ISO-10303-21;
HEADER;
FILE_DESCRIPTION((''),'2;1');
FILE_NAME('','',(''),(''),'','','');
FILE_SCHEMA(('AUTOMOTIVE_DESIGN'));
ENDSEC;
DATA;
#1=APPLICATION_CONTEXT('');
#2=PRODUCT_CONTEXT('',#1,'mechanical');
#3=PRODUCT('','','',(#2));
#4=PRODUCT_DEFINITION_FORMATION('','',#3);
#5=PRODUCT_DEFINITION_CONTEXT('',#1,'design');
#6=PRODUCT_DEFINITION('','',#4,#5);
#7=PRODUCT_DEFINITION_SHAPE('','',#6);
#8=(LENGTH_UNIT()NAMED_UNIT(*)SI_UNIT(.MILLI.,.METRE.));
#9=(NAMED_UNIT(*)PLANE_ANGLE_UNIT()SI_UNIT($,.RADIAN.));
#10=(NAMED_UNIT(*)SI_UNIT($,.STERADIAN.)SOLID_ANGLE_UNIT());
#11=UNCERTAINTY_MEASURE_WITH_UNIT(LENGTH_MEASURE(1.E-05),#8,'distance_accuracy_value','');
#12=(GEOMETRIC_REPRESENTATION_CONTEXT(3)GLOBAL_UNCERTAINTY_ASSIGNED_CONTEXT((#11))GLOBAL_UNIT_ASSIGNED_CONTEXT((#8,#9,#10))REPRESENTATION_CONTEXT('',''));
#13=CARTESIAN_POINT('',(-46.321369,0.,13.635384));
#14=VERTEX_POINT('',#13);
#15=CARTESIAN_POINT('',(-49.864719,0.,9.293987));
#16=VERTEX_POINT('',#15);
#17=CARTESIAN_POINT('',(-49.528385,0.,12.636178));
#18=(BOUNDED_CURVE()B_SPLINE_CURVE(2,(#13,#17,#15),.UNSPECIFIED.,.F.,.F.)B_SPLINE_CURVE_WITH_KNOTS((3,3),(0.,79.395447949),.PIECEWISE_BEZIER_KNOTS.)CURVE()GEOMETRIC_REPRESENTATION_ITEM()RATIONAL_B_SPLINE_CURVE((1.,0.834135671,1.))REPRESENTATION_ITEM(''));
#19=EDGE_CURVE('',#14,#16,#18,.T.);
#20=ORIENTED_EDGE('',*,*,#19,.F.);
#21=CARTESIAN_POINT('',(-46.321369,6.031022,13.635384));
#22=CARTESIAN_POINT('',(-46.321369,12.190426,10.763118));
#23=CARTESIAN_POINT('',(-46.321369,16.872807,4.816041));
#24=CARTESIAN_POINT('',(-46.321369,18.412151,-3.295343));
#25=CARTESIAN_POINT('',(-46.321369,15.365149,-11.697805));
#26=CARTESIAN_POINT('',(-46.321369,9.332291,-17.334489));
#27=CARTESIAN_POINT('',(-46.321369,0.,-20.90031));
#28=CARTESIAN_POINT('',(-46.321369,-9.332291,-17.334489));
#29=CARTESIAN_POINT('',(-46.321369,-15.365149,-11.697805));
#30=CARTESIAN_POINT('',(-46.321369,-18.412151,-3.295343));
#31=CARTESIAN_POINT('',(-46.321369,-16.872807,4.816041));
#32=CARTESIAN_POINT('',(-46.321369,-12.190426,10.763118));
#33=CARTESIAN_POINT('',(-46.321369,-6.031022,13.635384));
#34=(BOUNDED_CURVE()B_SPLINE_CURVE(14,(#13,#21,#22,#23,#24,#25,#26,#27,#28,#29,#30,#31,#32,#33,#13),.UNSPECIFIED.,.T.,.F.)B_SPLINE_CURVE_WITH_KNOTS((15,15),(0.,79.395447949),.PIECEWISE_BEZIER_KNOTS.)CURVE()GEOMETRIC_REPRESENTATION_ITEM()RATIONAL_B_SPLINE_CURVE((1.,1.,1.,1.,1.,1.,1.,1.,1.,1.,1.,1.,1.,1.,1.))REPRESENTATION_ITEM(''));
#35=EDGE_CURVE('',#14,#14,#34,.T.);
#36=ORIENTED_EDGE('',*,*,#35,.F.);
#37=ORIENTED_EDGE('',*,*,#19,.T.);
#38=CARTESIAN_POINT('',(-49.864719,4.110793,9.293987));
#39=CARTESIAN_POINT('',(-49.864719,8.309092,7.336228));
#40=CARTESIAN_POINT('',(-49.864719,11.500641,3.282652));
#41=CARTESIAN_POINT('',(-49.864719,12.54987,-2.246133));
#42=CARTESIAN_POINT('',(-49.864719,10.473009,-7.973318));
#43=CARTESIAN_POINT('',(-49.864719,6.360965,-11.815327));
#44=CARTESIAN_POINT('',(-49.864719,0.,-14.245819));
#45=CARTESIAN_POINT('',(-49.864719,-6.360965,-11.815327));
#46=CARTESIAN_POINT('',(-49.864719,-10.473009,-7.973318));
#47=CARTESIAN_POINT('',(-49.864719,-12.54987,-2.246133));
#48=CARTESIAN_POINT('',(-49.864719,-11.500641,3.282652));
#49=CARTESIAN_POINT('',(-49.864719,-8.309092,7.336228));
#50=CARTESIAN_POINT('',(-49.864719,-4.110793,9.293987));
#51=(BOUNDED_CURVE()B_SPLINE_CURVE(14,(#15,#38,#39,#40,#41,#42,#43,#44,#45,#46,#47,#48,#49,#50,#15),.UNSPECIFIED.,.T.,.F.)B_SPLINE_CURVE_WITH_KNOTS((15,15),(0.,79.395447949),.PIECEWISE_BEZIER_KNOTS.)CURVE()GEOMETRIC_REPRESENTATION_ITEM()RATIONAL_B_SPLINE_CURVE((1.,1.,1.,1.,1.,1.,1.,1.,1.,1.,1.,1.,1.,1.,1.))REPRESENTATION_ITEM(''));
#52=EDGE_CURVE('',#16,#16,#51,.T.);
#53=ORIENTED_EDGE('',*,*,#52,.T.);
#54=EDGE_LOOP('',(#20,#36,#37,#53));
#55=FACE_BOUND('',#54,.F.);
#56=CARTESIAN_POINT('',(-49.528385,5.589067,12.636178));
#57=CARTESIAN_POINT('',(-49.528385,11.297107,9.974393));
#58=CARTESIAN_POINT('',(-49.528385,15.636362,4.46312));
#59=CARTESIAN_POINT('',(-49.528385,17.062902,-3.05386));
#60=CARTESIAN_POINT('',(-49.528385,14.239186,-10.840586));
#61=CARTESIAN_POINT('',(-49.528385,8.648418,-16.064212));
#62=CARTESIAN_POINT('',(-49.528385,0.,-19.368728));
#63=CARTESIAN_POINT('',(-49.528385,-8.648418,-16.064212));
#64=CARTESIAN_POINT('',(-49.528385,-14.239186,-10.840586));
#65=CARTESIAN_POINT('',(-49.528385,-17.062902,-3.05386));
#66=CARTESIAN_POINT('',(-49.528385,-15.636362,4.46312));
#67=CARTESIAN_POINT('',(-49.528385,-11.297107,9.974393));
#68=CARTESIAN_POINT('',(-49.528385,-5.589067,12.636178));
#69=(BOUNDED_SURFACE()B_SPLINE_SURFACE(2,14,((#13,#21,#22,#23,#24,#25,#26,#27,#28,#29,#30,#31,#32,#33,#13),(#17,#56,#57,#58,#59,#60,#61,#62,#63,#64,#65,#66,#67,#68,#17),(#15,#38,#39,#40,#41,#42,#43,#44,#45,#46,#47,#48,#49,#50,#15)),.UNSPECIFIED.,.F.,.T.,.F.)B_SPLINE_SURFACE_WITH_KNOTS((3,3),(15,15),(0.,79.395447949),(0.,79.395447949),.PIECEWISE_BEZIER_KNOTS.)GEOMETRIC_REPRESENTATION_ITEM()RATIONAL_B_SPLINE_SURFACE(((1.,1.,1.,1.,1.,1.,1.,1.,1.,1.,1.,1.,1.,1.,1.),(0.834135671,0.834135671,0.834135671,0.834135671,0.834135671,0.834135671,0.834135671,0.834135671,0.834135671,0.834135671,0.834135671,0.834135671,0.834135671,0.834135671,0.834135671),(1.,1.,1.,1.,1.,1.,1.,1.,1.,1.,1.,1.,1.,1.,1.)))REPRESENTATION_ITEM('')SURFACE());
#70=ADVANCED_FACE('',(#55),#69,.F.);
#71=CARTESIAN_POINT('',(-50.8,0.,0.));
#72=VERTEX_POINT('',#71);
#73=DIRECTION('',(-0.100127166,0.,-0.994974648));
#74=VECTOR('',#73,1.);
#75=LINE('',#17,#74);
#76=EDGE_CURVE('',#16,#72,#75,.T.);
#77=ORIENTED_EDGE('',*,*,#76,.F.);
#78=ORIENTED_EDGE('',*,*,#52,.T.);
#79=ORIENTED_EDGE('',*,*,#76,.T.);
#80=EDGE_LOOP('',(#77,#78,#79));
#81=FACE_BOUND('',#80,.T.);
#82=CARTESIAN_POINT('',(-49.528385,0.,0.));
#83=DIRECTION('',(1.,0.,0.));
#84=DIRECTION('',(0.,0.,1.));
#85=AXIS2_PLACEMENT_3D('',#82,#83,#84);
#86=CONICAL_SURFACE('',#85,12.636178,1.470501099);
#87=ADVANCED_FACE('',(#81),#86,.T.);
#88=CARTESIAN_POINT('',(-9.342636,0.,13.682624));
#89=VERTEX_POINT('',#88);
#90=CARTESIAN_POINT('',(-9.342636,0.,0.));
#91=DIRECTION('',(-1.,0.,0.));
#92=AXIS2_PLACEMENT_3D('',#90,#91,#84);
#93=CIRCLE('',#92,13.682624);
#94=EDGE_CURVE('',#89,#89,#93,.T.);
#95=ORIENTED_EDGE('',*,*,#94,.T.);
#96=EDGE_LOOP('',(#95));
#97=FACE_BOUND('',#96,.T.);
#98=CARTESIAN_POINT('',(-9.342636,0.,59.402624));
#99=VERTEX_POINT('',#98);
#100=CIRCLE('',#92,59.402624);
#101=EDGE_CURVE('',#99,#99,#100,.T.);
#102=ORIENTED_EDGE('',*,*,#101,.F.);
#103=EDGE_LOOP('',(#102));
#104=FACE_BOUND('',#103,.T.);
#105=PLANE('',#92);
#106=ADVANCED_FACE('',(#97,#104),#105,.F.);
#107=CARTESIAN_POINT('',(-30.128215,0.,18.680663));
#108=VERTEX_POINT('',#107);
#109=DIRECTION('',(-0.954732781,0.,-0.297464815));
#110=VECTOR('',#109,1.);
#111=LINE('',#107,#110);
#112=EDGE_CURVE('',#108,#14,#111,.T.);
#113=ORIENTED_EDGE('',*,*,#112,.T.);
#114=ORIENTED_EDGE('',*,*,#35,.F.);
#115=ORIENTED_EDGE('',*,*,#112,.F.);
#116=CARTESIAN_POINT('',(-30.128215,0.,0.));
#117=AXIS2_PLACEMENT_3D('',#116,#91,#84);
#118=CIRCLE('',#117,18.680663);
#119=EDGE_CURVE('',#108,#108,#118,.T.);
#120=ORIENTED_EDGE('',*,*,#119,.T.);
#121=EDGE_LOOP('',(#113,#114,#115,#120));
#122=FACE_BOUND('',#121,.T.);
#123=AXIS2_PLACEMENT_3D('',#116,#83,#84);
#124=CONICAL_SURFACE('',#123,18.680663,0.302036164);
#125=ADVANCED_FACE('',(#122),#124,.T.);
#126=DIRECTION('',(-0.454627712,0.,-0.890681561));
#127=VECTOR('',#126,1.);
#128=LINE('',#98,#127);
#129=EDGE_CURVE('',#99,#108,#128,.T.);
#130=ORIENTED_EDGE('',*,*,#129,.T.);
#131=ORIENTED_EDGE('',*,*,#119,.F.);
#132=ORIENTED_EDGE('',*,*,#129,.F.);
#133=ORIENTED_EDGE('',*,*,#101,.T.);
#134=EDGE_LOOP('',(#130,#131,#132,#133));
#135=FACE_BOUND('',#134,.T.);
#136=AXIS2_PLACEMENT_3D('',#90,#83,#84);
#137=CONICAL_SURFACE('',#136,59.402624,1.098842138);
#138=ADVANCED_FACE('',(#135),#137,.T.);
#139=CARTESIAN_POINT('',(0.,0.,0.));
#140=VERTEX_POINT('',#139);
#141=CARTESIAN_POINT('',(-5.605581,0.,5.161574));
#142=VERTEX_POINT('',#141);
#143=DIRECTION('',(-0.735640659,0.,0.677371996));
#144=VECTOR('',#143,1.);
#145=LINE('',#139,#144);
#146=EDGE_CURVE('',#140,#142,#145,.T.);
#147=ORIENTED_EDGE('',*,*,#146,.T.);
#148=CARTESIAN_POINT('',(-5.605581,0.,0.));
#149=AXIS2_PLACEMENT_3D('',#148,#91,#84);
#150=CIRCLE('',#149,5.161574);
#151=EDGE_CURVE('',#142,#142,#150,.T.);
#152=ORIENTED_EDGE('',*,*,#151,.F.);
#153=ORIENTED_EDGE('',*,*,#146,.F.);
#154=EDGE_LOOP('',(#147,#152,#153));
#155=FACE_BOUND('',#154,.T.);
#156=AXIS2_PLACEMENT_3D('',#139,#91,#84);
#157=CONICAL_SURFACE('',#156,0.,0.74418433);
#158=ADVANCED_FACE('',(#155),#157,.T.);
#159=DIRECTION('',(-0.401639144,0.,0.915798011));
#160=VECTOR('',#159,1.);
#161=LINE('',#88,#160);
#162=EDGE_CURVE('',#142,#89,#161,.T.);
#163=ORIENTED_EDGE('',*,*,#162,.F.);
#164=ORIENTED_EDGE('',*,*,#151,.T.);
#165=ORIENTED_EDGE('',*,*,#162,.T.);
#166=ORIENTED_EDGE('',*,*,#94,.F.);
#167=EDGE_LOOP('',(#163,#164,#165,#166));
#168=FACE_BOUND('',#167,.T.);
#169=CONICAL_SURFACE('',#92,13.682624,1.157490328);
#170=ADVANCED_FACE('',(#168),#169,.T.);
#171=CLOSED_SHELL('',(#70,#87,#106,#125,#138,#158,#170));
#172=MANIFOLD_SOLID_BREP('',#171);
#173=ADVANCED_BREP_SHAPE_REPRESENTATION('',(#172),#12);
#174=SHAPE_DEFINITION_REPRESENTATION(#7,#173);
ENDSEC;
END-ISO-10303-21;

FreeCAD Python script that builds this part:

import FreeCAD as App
import Part
import Sketcher
from FreeCAD import Vector
Q = App.Units.Quantity


def edges_at(feature, points):
    """Names of the edges that pass closest to the given points."""
    edges = feature.Shape.Edges
    near = lambda p: min(range(len(edges)), key=lambda i: edges[i].distToShape(Part.Vertex(*p))[0])
    return sorted({f"Edge{near(p) + 1}" for p in points})

doc = App.newDocument("Part")
body = doc.addObject("PartDesign::Body", "Body")

# Sketch on XZ plane
sketch1 = doc.addObject("Sketcher::SketchObject", "Sketch")
body.addObject(sketch1)
sketch1.AttachmentSupport = (doc.XZ_Plane, [""])
sketch1.MapMode = "FlatFace"
sketch1.addGeometry(Part.LineSegment(Vector(-30.128215, 18.680663, 0), Vector(-49.528385, 12.636178, 0)), False)
sketch1.addGeometry(Part.LineSegment(Vector(-49.528385, 12.636178, 0), Vector(-50.8, 0, 0)), False)
sketch1.addGeometry(Part.LineSegment(Vector(-50.8, 0, 0), Vector(0, 0, 0)), False)
sketch1.addGeometry(Part.LineSegment(Vector(0, 0, 0), Vector(-9.342636, 8.602624, 0)), False)
sketch1.addGeometry(Part.LineSegment(Vector(-9.342636, 8.602624, 0), Vector(-9.342636, 59.402624, 0)), False)
sketch1.addGeometry(Part.LineSegment(Vector(-9.342636, 59.402624, 0), Vector(-30.128215, 18.680663, 0)), False)
sketch1.addConstraint(Sketcher.Constraint("Coincident", 0, 2, 1, 1))
sketch1.addConstraint(Sketcher.Constraint("Coincident", 1, 2, 2, 1))
sketch1.addConstraint(Sketcher.Constraint("Coincident", 2, 2, 3, 1))
sketch1.addConstraint(Sketcher.Constraint("Coincident", 3, 2, 4, 1))
sketch1.addConstraint(Sketcher.Constraint("Coincident", 4, 2, 5, 1))
sketch1.addConstraint(Sketcher.Constraint("Coincident", 5, 2, 0, 1))
sketch1.addConstraint(Sketcher.Constraint("Horizontal", 2))
sketch1.addConstraint(Sketcher.Constraint("Vertical", 4))
sketch1.addConstraint(Sketcher.Constraint("Coincident", 2, 2, -1, 1))
sketch1.addConstraint(Sketcher.Constraint("Equal", 2, 4))
sketch1.addConstraint(Sketcher.Constraint("Equal", 1, 3))
sketch1.addConstraint(Sketcher.Constraint("DistanceX", 2, 1, 2, 2, Q("2 in")))
sketch1.addConstraint(Sketcher.Constraint("Distance", 0, Q("0.8 in")))
sketch1.addConstraint(Sketcher.Constraint("Distance", 1, Q("0.5 in")))
sketch1.addConstraint(Sketcher.Constraint("Distance", 5, Q("1.8 in")))
sketch1.addConstraint(Sketcher.Constraint("DistanceX", 0, 2, 3, 2, Q("40.185749 mm")))
sketch1.addConstraint(Sketcher.Constraint("DistanceX", 0, 2, 5, 2, Q("19.40017 mm")))
revolution = doc.addObject("PartDesign::Revolution", "Revolution")
body.addObject(revolution)
revolution.Profile = sketch1
revolution.ReferenceAxis = (sketch1, ["H_Axis"])
revolution.Angle = 360
doc.recompute()

chamfer = doc.addObject("PartDesign::Chamfer", "Chamfer")
body.addObject(chamfer)
chamfer.Base = (revolution, edges_at(revolution, [(-9.343, 0, -8.603), (-4.671, 0, 4.301)]))
chamfer.Size = Q("0.2 in")
doc.recompute()

fillet = doc.addObject("PartDesign::Fillet", "Fillet")
body.addObject(fillet)
fillet.Base = (chamfer, edges_at(chamfer, [(-49.528, 0, -12.636), (-50.164, 0, 6.318)]))
fillet.Radius = Q("0.2 in")

doc.recompute()
